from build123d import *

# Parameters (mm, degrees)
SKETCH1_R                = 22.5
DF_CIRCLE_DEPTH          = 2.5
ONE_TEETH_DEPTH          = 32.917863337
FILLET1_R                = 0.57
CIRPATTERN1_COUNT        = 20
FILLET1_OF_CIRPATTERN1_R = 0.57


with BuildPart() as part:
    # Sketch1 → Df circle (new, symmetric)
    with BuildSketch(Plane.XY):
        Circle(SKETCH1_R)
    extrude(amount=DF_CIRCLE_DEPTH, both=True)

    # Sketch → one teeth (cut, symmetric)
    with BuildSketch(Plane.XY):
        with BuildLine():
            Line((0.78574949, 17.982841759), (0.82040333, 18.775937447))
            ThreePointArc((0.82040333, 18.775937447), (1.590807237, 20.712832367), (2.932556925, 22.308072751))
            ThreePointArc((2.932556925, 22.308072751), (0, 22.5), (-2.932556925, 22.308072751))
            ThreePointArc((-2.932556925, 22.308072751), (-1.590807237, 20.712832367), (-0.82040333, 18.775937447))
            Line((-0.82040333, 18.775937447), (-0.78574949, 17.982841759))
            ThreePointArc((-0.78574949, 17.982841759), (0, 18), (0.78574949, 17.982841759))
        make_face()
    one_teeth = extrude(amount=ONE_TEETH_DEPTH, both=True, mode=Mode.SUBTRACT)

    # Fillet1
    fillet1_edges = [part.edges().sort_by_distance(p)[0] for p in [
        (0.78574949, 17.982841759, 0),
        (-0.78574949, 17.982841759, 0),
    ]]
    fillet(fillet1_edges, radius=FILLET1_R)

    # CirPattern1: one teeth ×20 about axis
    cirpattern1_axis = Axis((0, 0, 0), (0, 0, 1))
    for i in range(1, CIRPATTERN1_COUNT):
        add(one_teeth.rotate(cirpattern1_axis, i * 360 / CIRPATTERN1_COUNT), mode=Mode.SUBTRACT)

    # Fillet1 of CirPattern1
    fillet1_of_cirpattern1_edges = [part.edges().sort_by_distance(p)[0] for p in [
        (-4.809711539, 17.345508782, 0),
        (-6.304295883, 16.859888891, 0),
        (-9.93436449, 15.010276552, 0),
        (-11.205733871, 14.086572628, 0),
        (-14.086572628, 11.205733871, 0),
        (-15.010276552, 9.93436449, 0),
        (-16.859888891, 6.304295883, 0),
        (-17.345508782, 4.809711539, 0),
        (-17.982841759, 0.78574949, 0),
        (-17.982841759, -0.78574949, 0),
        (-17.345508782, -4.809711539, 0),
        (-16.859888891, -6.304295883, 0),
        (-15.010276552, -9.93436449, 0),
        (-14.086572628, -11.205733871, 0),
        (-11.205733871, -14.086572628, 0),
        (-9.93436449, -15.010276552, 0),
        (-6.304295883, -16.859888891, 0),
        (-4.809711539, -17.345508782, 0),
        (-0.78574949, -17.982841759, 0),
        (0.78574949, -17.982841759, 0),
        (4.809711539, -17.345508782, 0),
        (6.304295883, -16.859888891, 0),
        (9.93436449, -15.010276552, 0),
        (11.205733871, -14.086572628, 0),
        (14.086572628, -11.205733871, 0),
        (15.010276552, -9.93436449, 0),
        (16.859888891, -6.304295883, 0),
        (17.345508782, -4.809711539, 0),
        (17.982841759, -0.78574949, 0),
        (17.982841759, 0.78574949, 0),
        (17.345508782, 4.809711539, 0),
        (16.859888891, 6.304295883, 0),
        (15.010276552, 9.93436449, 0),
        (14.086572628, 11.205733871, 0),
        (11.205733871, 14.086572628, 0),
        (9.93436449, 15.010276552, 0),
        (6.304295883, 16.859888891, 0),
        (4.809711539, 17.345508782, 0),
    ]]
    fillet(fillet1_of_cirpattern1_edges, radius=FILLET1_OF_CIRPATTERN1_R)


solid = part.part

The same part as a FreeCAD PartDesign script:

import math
import FreeCAD as App
import Part
import Sketcher

V = App.Vector
Q = App.Units.Quantity


def edges_at(feature, points):
    """Names of the edges that pass closest to the given points."""
    edges = feature.Shape.Edges
    near = lambda p: min(range(len(edges)), key=lambda i: edges[i].distToShape(Part.Vertex(*p))[0])
    return sorted({f"Edge{near(p) + 1}" for p in points})

doc = App.newDocument("Part")
body = doc.addObject("PartDesign::Body", "Body")

sketch1 = body.newObject("Sketcher::SketchObject", "Sketch")
sketch1.AttachmentSupport = (doc.getObject("XY_Plane"), [""])
sketch1.MapMode = "FlatFace"
sketch1.addGeometry(Part.Circle(V(0, 0, 0), V(0, 0, 1), 22.5), False)
sketch1.addConstraint([
    Sketcher.Constraint("Coincident", 0, 3, -1, 1),
    Sketcher.Constraint("Diameter", 0, Q("45 mm")),
])
pad1 = body.newObject("PartDesign::Pad", "Pad")
pad1.Profile = sketch1
pad1.Length = 5
pad1.Midplane = True

sketch2 = body.newObject("Sketcher::SketchObject", "Sketch001")
sketch2.AttachmentSupport = (doc.getObject("XY_Plane"), [""])
sketch2.MapMode = "FlatFace"
sketch2.addGeometry([
    Part.LineSegment(V(0.785749, 17.982842, 0), V(0.820403, 18.775937, 0)),
    Part.ArcOfCircle(Part.Circle(V(7.192676, 17.363015, 0), V(0, 0, 1), 6.527036), math.radians(130.744579), math.radians(167.498087)),
    Part.ArcOfCircle(Part.Circle(V(0, 0, 0), V(0, 0, 1), 22.5), math.radians(82.510999), math.radians(97.489001)),
    Part.ArcOfCircle(Part.Circle(V(-7.192676, 17.363015, 0), V(0, 0, 1), 6.527036), math.radians(12.501913), math.radians(49.255421)),
    Part.LineSegment(V(-0.820403, 18.775937, 0), V(-0.785749, 17.982842, 0)),
    Part.ArcOfCircle(Part.Circle(V(0, 0, 0), V(0, 0, 1), 18), math.radians(87.498087), math.radians(92.501913)),
], False)
sketch2.addConstraint([
    Sketcher.Constraint("Coincident", 0, 2, 1, 2),
    Sketcher.Constraint("Coincident", 1, 1, 2, 1),
    Sketcher.Constraint("Coincident", 2, 2, 3, 2),
    Sketcher.Constraint("Coincident", 3, 1, 4, 1),
    Sketcher.Constraint("Coincident", 4, 2, 5, 2),
    Sketcher.Constraint("Coincident", 5, 1, 0, 1),
    Sketcher.Constraint("Coincident", 2, 3, -1, 1),
    Sketcher.Constraint("Coincident", 5, 3, -1, 1),
    Sketcher.Constraint("Equal", 1, 3),
    Sketcher.Constraint("Symmetric", 1, 3, 3, 3, -2),
    Sketcher.Constraint("Horizontal", 0, 2, 3, 1),
    Sketcher.Constraint("Horizontal", 4, 2, 5, 1),
    Sketcher.Constraint("Radius", 5, Q("18 mm")),
    Sketcher.Constraint("Radius", 2, Q("22.5 mm")),
    Sketcher.Constraint("Radius", 1, Q("6.527036 mm")),
    Sketcher.Constraint("DistanceX", 4, 2, 5, 1, Q("1.571499 mm")),
    Sketcher.Constraint("DistanceX", 3, 3, 1, 3, Q("14.385352 mm")),
    Sketcher.Constraint("DistanceX", 3, 3, 0, 2, Q("8.013079 mm")),
    Sketcher.Constraint("DistanceX", 1, 1, 1, 3, Q("4.260119 mm")),
])
pocket1 = body.newObject("PartDesign::Pocket", "Pocket")
pocket1.Profile = sketch2
pocket1.Length = 65.835727
pocket1.Midplane = True
doc.recompute()

fillet = body.newObject("PartDesign::Fillet", "Fillet")
fillet.Base = (pocket1, edges_at(pocket1, [(0.786, 17.983, 0), (-0.786, 17.983, 0)]))
fillet.Radius = 0.57
doc.recompute()

polarpattern = body.newObject("PartDesign::PolarPattern", "PolarPattern")
polarpattern.Originals = [pocket1]
polarpattern.Axis = (doc.getObject("Z_Axis"), [""])
polarpattern.Angle = 360
polarpattern.Occurrences = 20
body.Tip = polarpattern
doc.recompute()

fillet2 = body.newObject("PartDesign::Fillet", "Fillet001")
fillet2.Base = (polarpattern, edges_at(polarpattern, [
    (-4.81, 17.346, 0),
    (-6.304, 16.86, 0),
    (-9.934, 15.01, 0),
    (-11.206, 14.087, 0),
    (-14.087, 11.206, 0),
    (-15.01, 9.934, 0),
    (-16.86, 6.304, 0),
    (-17.346, 4.81, 0),
    (-17.983, 0.786, 0),
    (-17.983, -0.786, 0),
    (-17.346, -4.81, 0),
    (-16.86, -6.304, 0),
    (-15.01, -9.934, 0),
    (-14.087, -11.206, 0),
    (-11.206, -14.087, 0),
    (-9.934, -15.01, 0),
    (-6.304, -16.86, 0),
    (-4.81, -17.346, 0),
    (-0.786, -17.983, 0),
    (0.786, -17.983, 0),
    (4.81, -17.346, 0),
    (6.304, -16.86, 0),
    (9.934, -15.01, 0),
    (11.206, -14.087, 0),
    (14.087, -11.206, 0),
    (15.01, -9.934, 0),
    (16.86, -6.304, 0),
    (17.346, -4.81, 0),
    (17.983, -0.786, 0),
    (17.983, 0.786, 0),
    (17.346, 4.81, 0),
    (16.86, 6.304, 0),
    (15.01, 9.934, 0),
    (14.087, 11.206, 0),
    (11.206, 14.087, 0),
    (9.934, 15.01, 0),
    (6.304, 16.86, 0),
    (4.81, 17.346, 0),
]))
fillet2.Radius = 0.57

doc.recompute()
